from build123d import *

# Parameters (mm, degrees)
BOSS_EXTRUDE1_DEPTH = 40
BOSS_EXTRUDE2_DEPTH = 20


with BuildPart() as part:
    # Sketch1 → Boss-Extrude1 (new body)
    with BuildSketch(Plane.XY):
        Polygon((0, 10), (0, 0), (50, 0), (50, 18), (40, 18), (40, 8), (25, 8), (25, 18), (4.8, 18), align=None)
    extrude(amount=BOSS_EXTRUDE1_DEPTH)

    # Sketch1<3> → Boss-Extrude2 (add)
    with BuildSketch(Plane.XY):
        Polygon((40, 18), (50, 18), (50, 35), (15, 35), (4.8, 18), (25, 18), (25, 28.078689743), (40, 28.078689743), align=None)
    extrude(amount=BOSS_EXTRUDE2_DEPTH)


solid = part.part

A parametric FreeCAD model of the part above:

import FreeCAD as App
import Part
import Sketcher
from FreeCAD import Vector
Q = App.Units.Quantity


def add_polygon(sketch, points):
    """Adds a closed chain of lines whose ends are joined by coincident constraints."""
    first, n = sketch.GeometryCount, len(points)
    for a, b in zip(points, points[1:] + points[:1]):
        sketch.addGeometry(Part.LineSegment(App.Vector(*a, 0), App.Vector(*b, 0)), False)
    for i in range(n):
        sketch.addConstraint(Sketcher.Constraint("Coincident", first + i, 2, first + (i + 1) % n, 1))

doc = App.newDocument("Part")
body = doc.addObject("PartDesign::Body", "Body")

# Sketch on XY plane
sketch1 = body.newObject("Sketcher::SketchObject", "Sketch")
sketch1.AttachmentSupport = (doc.getObject("XY_Plane"), [""])
sketch1.MapMode = "FlatFace"
add_polygon(sketch1, [(0, 10), (0, 0), (50, 0), (50, 18), (40, 18), (40, 8), (25, 8), (25, 18), (5, 18)])  # lines 0-8
sketch1.addConstraint([
    Sketcher.Constraint("Vertical", 0),
    Sketcher.Constraint("Horizontal", 1),
    Sketcher.Constraint("Vertical", 2),
    Sketcher.Constraint("Horizontal", 3),
    Sketcher.Constraint("Vertical", 4),
    Sketcher.Constraint("Horizontal", 5),
    Sketcher.Constraint("Vertical", 6),
    Sketcher.Constraint("Horizontal", 7),
    Sketcher.Constraint("Coincident", 0, 2, -1, 1),
    Sketcher.Constraint("Horizontal", 3, 2, 6, 2),
    Sketcher.Constraint("Equal", 3, 0),
    Sketcher.Constraint("Equal", 0, 4),
    Sketcher.Constraint("DistanceX", 1, 1, 1, 2, Q("50 mm")),
    Sketcher.Constraint("DistanceX", 3, 2, 3, 1, Q("10 mm")),
    Sketcher.Constraint("DistanceX", 5, 2, 5, 1, Q("15 mm")),
    Sketcher.Constraint("DistanceY", 2, 1, 2, 2, Q("18 mm")),
    Sketcher.Constraint("DistanceX", 7, 2, 7, 1, Q("20.2 mm")),
])
pad1 = body.newObject("PartDesign::Pad", "Pad")
pad1.Profile = sketch1
pad1.Length = 40

# Sketch on XY plane
sketch2 = body.newObject("Sketcher::SketchObject", "Sketch001")
sketch2.AttachmentSupport = (doc.getObject("XY_Plane"), [""])
sketch2.MapMode = "FlatFace"
add_polygon(sketch2, [(40, 18), (50, 18), (50, 35), (15, 35), (5, 18), (25, 18), (25, 28), (40, 28)])  # lines 0-7
sketch2.addConstraint([
    Sketcher.Constraint("Horizontal", 0),
    Sketcher.Constraint("Vertical", 1),
    Sketcher.Constraint("Horizontal", 2),
    Sketcher.Constraint("Horizontal", 4),
    Sketcher.Constraint("Vertical", 5),
    Sketcher.Constraint("Horizontal", 6),
    Sketcher.Constraint("Vertical", 7),
    Sketcher.Constraint("Horizontal", 0, 2, 3, 2),
    Sketcher.Constraint("DistanceX", 0, 1, 0, 2, Q("10 mm")),
    Sketcher.Constraint("DistanceX", 2, 2, 2, 1, Q("35 mm")),
    Sketcher.Constraint("DistanceX", 6, 1, 6, 2, Q("15 mm")),
    Sketcher.Constraint("DistanceY", 1, 1, 1, 2, Q("17 mm")),
    Sketcher.Constraint("DistanceX", 4, 1, 4, 2, Q("20.2 mm")),
    Sketcher.Constraint("DistanceX", -1, 1, 0, 2, Q("50 mm")),
    Sketcher.Constraint("DistanceY", -1, 1, 0, 2, Q("18 mm")),
    Sketcher.Constraint("DistanceY", 5, 1, 5, 2, Q("10.07869 mm")),
])
pad2 = body.newObject("PartDesign::Pad", "Pad001")
pad2.Profile = sketch2
pad2.Length = 20

doc.recompute()
